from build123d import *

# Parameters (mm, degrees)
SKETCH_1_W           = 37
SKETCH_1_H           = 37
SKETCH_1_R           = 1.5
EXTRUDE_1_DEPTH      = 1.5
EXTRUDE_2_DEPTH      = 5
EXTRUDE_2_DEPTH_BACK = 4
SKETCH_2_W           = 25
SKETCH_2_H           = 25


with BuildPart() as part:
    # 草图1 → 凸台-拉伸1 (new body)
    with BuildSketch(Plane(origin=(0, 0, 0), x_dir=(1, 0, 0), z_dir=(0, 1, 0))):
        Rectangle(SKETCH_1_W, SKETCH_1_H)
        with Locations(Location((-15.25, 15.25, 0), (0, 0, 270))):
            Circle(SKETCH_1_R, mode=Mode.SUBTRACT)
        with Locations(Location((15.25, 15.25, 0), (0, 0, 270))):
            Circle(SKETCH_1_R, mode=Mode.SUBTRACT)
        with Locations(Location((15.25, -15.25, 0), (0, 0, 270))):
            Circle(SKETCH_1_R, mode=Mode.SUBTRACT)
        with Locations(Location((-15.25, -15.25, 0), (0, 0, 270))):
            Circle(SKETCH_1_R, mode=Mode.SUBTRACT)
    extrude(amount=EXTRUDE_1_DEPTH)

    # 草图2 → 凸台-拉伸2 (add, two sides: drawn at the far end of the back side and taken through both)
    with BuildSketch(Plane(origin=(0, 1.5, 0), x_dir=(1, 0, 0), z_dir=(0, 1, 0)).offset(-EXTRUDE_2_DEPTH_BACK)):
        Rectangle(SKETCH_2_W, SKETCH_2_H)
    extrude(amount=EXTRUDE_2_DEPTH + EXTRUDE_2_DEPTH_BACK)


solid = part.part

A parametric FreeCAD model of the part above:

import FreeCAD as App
import Part
import Sketcher


def add_polygon(sketch, points):
    """Adds a closed chain of lines whose ends are joined by coincident constraints."""
    first, n = sketch.GeometryCount, len(points)
    for a, b in zip(points, points[1:] + points[:1]):
        sketch.addGeometry(Part.LineSegment(App.Vector(*a, 0), App.Vector(*b, 0)), False)
    for i in range(n):
        sketch.addConstraint(Sketcher.Constraint("Coincident", first + i, 2, first + (i + 1) % n, 1))

doc = App.newDocument("Part")
params = doc.addObject("Spreadsheet::Sheet", "Params")
for row, (alias, value) in enumerate([
    ("sketch1_diameter", "3 mm"),
    ("sketch1_width", "37 mm"),
    ("pad1_length", "1.5 mm"),
    ("sketch2_width", "25 mm"),
    ("pad2_length", "5 mm"),
    ("pad2_length2", "4 mm"),
], start=1):
    params.set(f"A{row}", alias)
    params.set(f"B{row}", "=" + value)
    params.setAlias(f"B{row}", alias)

body = doc.addObject("PartDesign::Body", "Body")

# Sketch on XZ plane
sketch1 = body.newObject("Sketcher::SketchObject", "Sketch")
sketch1.AttachmentSupport = (doc.getObject("XZ_Plane"), [""])
sketch1.MapMode = "FlatFace"
add_polygon(sketch1, [(-18.5, -18.5), (-18.5, 18.5), (18.5, 18.5), (18.5, -18.5)])  # lines 0-3
sketch1.addGeometry(Part.Circle(App.Vector(-15.2, 15.2, 0), App.Vector(0, 0, 1), 1.5), False)  # 4
sketch1.addGeometry(Part.Circle(App.Vector(15.2, 15.2, 0), App.Vector(0, 0, 1), 1.5), False)  # 5
sketch1.addGeometry(Part.Circle(App.Vector(-15.2, -15.2, 0), App.Vector(0, 0, 1), 1.5), False)  # 6
sketch1.addGeometry(Part.Circle(App.Vector(15.2, -15.2, 0), App.Vector(0, 0, 1), 1.5), False)  # 7
sketch1.addConstraint(Sketcher.Constraint("Vertical", 0))
sketch1.addConstraint(Sketcher.Constraint("Horizontal", 1))
sketch1.addConstraint(Sketcher.Constraint("Vertical", 2))
sketch1.addConstraint(Sketcher.Constraint("Horizontal", 3))
sketch1.addConstraint(Sketcher.Constraint("Equal", 4, 5))
sketch1.addConstraint(Sketcher.Constraint("Equal", 5, 6))
sketch1.addConstraint(Sketcher.Constraint("Equal", 6, 7))
sketch1.addConstraint(Sketcher.Constraint("Symmetric", 5, 3, 6, 3, -1, 1))
sketch1.addConstraint(Sketcher.Constraint("Symmetric", 4, 3, 7, 3, -1, 1))
sketch1.addConstraint(Sketcher.Constraint("Symmetric", 0, 2, 2, 2, -1, 1))
sketch1.addConstraint(Sketcher.Constraint("Symmetric", 4, 3, 5, 3, -2))
sketch1.addConstraint(Sketcher.Constraint("Equal", 3, 0))
sketch1.addConstraint(Sketcher.Constraint("Diameter", 4, 3.0))
sketch1.addConstraint(Sketcher.Constraint("DistanceX", 1, 1, 1, 2, 37.0))
sketch1.addConstraint(Sketcher.Constraint("DistanceX", 4, 3, 5, 3, 30.5))
sketch1.addConstraint(Sketcher.Constraint("DistanceY", 6, 3, 4, 3, 30.5))
sketch1.setExpression("Constraints[16]", "Params.sketch1_diameter")
sketch1.setExpression("Constraints[17]", "Params.sketch1_width")
pad1 = body.newObject("PartDesign::Pad", "Pad")
pad1.Profile = sketch1
pad1.setExpression("Length", "Params.pad1_length")
pad1.Reversed = True

# Sketch on XZ plane
sketch2 = body.newObject("Sketcher::SketchObject", "Sketch001")
sketch2.AttachmentSupport = (doc.getObject("XZ_Plane"), [""])
sketch2.MapMode = "FlatFace"
sketch2.AttachmentOffset = App.Placement(App.Vector(0, 0, -1.5), App.Rotation())
add_polygon(sketch2, [(-12, -12), (-12, 12), (12, 12), (12, -12)])  # lines 0-3
sketch2.addConstraint(Sketcher.Constraint("Vertical", 0))
sketch2.addConstraint(Sketcher.Constraint("Horizontal", 1))
sketch2.addConstraint(Sketcher.Constraint("Vertical", 2))
sketch2.addConstraint(Sketcher.Constraint("Horizontal", 3))
sketch2.addConstraint(Sketcher.Constraint("Symmetric", 0, 2, 2, 2, -1, 1))
sketch2.addConstraint(Sketcher.Constraint("Equal", 3, 0))
sketch2.addConstraint(Sketcher.Constraint("DistanceX", 1, 1, 1, 2, 25.0))
sketch2.setExpression("Constraints[10]", "Params.sketch2_width")
pad2 = body.newObject("PartDesign::Pad", "Pad001")
pad2.Profile = sketch2
pad2.Type = "TwoLengths"
pad2.setExpression("Length", "Params.pad2_length")
pad2.setExpression("Length2", "Params.pad2_length2")
pad2.Reversed = True

doc.recompute()
